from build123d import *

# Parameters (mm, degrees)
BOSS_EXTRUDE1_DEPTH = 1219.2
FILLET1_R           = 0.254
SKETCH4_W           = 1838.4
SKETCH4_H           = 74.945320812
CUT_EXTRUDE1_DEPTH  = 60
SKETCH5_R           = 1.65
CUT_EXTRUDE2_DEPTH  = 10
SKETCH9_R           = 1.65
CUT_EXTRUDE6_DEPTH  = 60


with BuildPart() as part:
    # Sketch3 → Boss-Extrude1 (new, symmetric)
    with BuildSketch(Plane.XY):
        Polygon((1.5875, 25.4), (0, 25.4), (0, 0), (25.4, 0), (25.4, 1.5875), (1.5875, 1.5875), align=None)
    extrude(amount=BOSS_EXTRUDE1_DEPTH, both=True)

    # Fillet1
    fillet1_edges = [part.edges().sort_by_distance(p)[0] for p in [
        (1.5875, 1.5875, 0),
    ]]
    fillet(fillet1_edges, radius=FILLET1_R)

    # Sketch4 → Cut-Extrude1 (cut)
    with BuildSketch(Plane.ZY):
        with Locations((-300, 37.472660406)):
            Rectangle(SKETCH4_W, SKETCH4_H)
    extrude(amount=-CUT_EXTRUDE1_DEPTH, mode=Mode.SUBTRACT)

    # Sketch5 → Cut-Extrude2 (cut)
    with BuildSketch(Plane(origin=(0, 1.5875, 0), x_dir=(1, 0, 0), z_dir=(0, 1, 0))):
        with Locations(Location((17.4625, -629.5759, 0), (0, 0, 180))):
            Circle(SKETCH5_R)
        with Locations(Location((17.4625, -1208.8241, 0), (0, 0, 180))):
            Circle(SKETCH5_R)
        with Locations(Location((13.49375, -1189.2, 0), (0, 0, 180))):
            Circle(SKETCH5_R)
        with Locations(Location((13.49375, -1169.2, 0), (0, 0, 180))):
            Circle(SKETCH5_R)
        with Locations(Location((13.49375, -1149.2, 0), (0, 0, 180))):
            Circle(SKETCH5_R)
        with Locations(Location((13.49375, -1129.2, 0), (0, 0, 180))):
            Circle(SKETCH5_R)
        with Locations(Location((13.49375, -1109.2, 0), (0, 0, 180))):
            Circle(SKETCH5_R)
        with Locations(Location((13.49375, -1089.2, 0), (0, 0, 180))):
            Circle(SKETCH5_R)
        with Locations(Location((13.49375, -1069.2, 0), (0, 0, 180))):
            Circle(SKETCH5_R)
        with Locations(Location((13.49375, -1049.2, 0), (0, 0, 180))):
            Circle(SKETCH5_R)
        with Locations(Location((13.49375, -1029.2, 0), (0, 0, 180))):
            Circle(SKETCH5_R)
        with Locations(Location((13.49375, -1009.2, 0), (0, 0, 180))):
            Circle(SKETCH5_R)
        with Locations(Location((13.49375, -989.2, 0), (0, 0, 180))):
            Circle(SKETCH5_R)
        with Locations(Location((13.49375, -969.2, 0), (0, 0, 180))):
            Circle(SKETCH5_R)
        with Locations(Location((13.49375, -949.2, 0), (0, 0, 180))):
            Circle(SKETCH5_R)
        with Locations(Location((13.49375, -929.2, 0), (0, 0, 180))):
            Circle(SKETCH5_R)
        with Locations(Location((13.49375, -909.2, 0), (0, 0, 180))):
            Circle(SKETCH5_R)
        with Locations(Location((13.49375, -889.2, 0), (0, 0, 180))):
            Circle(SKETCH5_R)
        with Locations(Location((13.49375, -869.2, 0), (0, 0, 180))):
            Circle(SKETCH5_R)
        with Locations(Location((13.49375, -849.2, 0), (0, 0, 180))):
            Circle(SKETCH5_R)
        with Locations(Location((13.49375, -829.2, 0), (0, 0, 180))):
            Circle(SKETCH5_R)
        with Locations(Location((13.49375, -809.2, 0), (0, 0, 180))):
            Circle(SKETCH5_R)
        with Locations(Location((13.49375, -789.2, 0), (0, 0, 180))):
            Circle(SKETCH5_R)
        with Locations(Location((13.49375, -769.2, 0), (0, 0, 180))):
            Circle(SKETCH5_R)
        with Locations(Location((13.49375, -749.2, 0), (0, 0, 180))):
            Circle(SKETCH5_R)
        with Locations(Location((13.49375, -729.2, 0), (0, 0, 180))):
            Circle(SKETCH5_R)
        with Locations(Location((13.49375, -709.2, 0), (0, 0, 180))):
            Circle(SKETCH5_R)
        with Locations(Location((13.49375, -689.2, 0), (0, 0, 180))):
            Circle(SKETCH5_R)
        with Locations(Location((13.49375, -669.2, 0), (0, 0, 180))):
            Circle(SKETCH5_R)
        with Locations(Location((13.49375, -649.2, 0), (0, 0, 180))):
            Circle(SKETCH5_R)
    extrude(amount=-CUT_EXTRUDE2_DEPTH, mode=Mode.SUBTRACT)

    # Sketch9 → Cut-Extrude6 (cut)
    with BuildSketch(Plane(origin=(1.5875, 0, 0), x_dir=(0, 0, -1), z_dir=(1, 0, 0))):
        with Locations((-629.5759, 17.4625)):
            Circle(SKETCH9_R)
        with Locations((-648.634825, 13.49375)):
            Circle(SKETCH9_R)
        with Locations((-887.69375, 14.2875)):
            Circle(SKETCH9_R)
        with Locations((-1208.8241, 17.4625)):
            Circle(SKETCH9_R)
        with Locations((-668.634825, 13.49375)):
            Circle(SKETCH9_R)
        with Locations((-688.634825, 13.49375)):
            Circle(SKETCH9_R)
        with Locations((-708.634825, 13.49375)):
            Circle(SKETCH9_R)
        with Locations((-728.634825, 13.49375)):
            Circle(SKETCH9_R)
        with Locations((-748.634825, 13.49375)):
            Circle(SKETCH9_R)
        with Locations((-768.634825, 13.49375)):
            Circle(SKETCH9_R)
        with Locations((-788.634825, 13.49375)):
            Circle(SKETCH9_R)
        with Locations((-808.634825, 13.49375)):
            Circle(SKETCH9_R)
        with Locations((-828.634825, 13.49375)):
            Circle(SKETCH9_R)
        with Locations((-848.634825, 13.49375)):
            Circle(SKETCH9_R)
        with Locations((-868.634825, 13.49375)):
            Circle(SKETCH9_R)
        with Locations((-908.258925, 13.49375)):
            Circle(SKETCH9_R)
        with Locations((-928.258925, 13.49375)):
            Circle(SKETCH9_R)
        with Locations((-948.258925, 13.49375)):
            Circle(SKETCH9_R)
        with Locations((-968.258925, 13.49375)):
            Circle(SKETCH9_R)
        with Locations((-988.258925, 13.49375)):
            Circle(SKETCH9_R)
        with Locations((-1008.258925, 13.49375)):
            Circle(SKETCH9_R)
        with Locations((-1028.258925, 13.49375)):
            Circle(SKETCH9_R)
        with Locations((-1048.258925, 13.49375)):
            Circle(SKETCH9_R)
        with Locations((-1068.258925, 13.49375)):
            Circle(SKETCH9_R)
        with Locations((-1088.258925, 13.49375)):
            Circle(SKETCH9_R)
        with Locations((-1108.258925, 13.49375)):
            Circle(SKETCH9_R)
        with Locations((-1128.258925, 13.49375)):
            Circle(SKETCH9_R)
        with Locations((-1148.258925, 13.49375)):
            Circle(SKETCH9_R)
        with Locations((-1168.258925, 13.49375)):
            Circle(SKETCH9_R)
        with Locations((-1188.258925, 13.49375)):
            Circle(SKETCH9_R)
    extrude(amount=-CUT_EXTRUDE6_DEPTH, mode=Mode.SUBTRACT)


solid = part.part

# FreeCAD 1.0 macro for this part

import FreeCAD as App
import Part
import Sketcher
from FreeCAD import Vector
Q = App.Units.Quantity


def edges_at(feature, points):
    """Names of the edges that pass closest to the given points."""
    edges = feature.Shape.Edges
    near = lambda p: min(range(len(edges)), key=lambda i: edges[i].distToShape(Part.Vertex(*p))[0])
    return sorted({f"Edge{near(p) + 1}" for p in points})


def add_polygon(sketch, points):
    """Adds a closed chain of lines whose ends are joined by coincident constraints."""
    first, n = sketch.GeometryCount, len(points)
    for a, b in zip(points, points[1:] + points[:1]):
        sketch.addGeometry(Part.LineSegment(App.Vector(*a, 0), App.Vector(*b, 0)), False)
    for i in range(n):
        sketch.addConstraint(Sketcher.Constraint("Coincident", first + i, 2, first + (i + 1) % n, 1))

doc = App.newDocument("Part")
params = doc.addObject("Spreadsheet::Sheet", "Params")
for row, (alias, value) in enumerate([
    ("sketch1_width", "1 in"),
    ("sketch1_width2", "0.0625 in"),
    ("pad1_length", "96 in"),
    ("fillet_radius", "0.01 in"),
    ("pocket1_length", "60 mm"),
    ("pocket2_length", "10 mm"),
    ("pocket3_length", "60 mm"),
], start=1):
    params.set(f"A{row}", alias)
    params.set(f"B{row}", "=" + value)
    params.setAlias(f"B{row}", alias)

body = doc.addObject("PartDesign::Body", "Body")

# Sketch on XY plane
sketch1 = doc.addObject("Sketcher::SketchObject", "Sketch")
body.addObject(sketch1)
sketch1.AttachmentSupport = (doc.XY_Plane, [""])
sketch1.MapMode = "FlatFace"
add_polygon(sketch1, [(1.6, 25.4), (0, 25.4), (0, 0), (25.4, 0), (25.4, 1.6), (1.6, 1.6)])  # lines 0-5
sketch1.addConstraint(Sketcher.Constraint("Horizontal", 0))
sketch1.addConstraint(Sketcher.Constraint("Vertical", 1))
sketch1.addConstraint(Sketcher.Constraint("Horizontal", 2))
sketch1.addConstraint(Sketcher.Constraint("Vertical", 3))
sketch1.addConstraint(Sketcher.Constraint("Horizontal", 4))
sketch1.addConstraint(Sketcher.Constraint("Vertical", 5))
sketch1.addConstraint(Sketcher.Constraint("Coincident", 1, 2, -1, 1))
sketch1.addConstraint(Sketcher.Constraint("Equal", 2, 1))
sketch1.addConstraint(Sketcher.Constraint("Equal", 0, 3))
sketch1.addConstraint(Sketcher.Constraint("DistanceX", 2, 1, 2, 2, Q("1 in")))
sketch1.addConstraint(Sketcher.Constraint("DistanceX", 0, 2, 0, 1, Q("0.0625 in")))
sketch1.setExpression("Constraints[15]", "Params.sketch1_width")
sketch1.setExpression("Constraints[16]", "Params.sketch1_width2")
pad1 = doc.addObject("PartDesign::Pad", "Pad")
body.addObject(pad1)
pad1.Profile = sketch1
pad1.setExpression("Length", "Params.pad1_length")
pad1.Midplane = True
doc.recompute()

fillet = doc.addObject("PartDesign::Fillet", "Fillet")
body.addObject(fillet)
fillet.Base = (pad1, edges_at(pad1, [(1.587, 1.587, 0)]))
fillet.setExpression("Radius", "Params.fillet_radius")

# Sketch on YZ plane
sketch2 = doc.addObject("Sketcher::SketchObject", "Sketch001")
body.addObject(sketch2)
sketch2.AttachmentSupport = (doc.YZ_Plane, [""])
sketch2.MapMode = "FlatFace"
add_polygon(sketch2, [(75, -1219), (0, -1219), (0, 619), (75, 619)])  # lines 0-3
sketch2.addConstraint(Sketcher.Constraint("Horizontal", 0))
sketch2.addConstraint(Sketcher.Constraint("Vertical", 1))
sketch2.addConstraint(Sketcher.Constraint("Horizontal", 2))
sketch2.addConstraint(Sketcher.Constraint("Vertical", 3))
sketch2.addConstraint(Sketcher.Constraint("PointOnObject", 0, 2, -2))
sketch2.addConstraint(Sketcher.Constraint("DistanceY", 0, 2, -1, 1, Q("48 in")))
sketch2.addConstraint(Sketcher.Constraint("DistanceY", 1, 1, 1, 2, 1838.4))
sketch2.addConstraint(Sketcher.Constraint("DistanceX", 0, 2, 0, 1, 74.945321))
pocket1 = doc.addObject("PartDesign::Pocket", "Pocket")
body.addObject(pocket1)
pocket1.Profile = sketch2
pocket1.setExpression("Length", "Params.pocket1_length")
pocket1.Reversed = True

# Sketch on XZ plane
sketch3 = doc.addObject("Sketcher::SketchObject", "Sketch002")
body.addObject(sketch3)
sketch3.AttachmentSupport = (doc.XZ_Plane, [""])
sketch3.MapMode = "FlatFace"
sketch3.AttachmentOffset = App.Placement(Vector(0, 0, -0.0625 * 25.4), App.Rotation())
sketch3.addGeometry(Part.Circle(Vector(17.5, 629.6, 0), Vector(0, 0, 1), 1.6), False)
sketch3.addGeometry(Part.Circle(Vector(17.5, 1208.8, 0), Vector(0, 0, 1), 1.6), False)
sketch3.addGeometry(Part.Circle(Vector(13.5, 1189.2, 0), Vector(0, 0, 1), 1.6), False)
sketch3.addGeometry(Part.Circle(Vector(13.5, 1169.2, 0), Vector(0, 0, 1), 1.6), False)
sketch3.addGeometry(Part.Circle(Vector(13.5, 1149.2, 0), Vector(0, 0, 1), 1.6), False)
sketch3.addGeometry(Part.Circle(Vector(13.5, 1129.2, 0), Vector(0, 0, 1), 1.6), False)
sketch3.addGeometry(Part.Circle(Vector(13.5, 1109.2, 0), Vector(0, 0, 1), 1.6), False)
sketch3.addGeometry(Part.Circle(Vector(13.5, 1089.2, 0), Vector(0, 0, 1), 1.6), False)
sketch3.addGeometry(Part.Circle(Vector(13.5, 1069.2, 0), Vector(0, 0, 1), 1.6), False)
sketch3.addGeometry(Part.Circle(Vector(13.5, 1049.2, 0), Vector(0, 0, 1), 1.6), False)
sketch3.addGeometry(Part.Circle(Vector(13.5, 1029.2, 0), Vector(0, 0, 1), 1.6), False)
sketch3.addGeometry(Part.Circle(Vector(13.5, 1009.2, 0), Vector(0, 0, 1), 1.6), False)
sketch3.addGeometry(Part.Circle(Vector(13.5, 989.2, 0), Vector(0, 0, 1), 1.6), False)
sketch3.addGeometry(Part.Circle(Vector(13.5, 969.2, 0), Vector(0, 0, 1), 1.6), False)
sketch3.addGeometry(Part.Circle(Vector(13.5, 949.2, 0), Vector(0, 0, 1), 1.6), False)
sketch3.addGeometry(Part.Circle(Vector(13.5, 929.2, 0), Vector(0, 0, 1), 1.6), False)
sketch3.addGeometry(Part.Circle(Vector(13.5, 909.2, 0), Vector(0, 0, 1), 1.6), False)
sketch3.addGeometry(Part.Circle(Vector(13.5, 889.2, 0), Vector(0, 0, 1), 1.6), False)
sketch3.addGeometry(Part.Circle(Vector(13.5, 869.2, 0), Vector(0, 0, 1), 1.6), False)
sketch3.addGeometry(Part.Circle(Vector(13.5, 849.2, 0), Vector(0, 0, 1), 1.6), False)
sketch3.addGeometry(Part.Circle(Vector(13.5, 829.2, 0), Vector(0, 0, 1), 1.6), False)
sketch3.addGeometry(Part.Circle(Vector(13.5, 809.2, 0), Vector(0, 0, 1), 1.6), False)
sketch3.addGeometry(Part.Circle(Vector(13.5, 789.2, 0), Vector(0, 0, 1), 1.6), False)
sketch3.addGeometry(Part.Circle(Vector(13.5, 769.2, 0), Vector(0, 0, 1), 1.6), False)
sketch3.addGeometry(Part.Circle(Vector(13.5, 749.2, 0), Vector(0, 0, 1), 1.6), False)
sketch3.addGeometry(Part.Circle(Vector(13.5, 729.2, 0), Vector(0, 0, 1), 1.6), False)
sketch3.addGeometry(Part.Circle(Vector(13.5, 709.2, 0), Vector(0, 0, 1), 1.6), False)
sketch3.addGeometry(Part.Circle(Vector(13.5, 689.2, 0), Vector(0, 0, 1), 1.6), False)
sketch3.addGeometry(Part.Circle(Vector(13.5, 669.2, 0), Vector(0, 0, 1), 1.6), False)
sketch3.addGeometry(Part.Circle(Vector(13.5, 649.2, 0), Vector(0, 0, 1), 1.6), False)
sketch3.addConstraint(Sketcher.Constraint("Equal", 0, 1))
sketch3.addConstraint(Sketcher.Constraint("Equal", 1, 2))
sketch3.addConstraint(Sketcher.Constraint("Equal", 2, 3))
sketch3.addConstraint(Sketcher.Constraint("Equal", 3, 4))
sketch3.addConstraint(Sketcher.Constraint("Equal", 4, 5))
sketch3.addConstraint(Sketcher.Constraint("Equal", 5, 6))
sketch3.addConstraint(Sketcher.Constraint("Equal", 6, 7))
sketch3.addConstraint(Sketcher.Constraint("Equal", 7, 8))
sketch3.addConstraint(Sketcher.Constraint("Equal", 8, 9))
sketch3.addConstraint(Sketcher.Constraint("Equal", 9, 10))
sketch3.addConstraint(Sketcher.Constraint("Equal", 10, 11))
sketch3.addConstraint(Sketcher.Constraint("Equal", 11, 12))
sketch3.addConstraint(Sketcher.Constraint("Equal", 12, 13))
sketch3.addConstraint(Sketcher.Constraint("Equal", 13, 14))
sketch3.addConstraint(Sketcher.Constraint("Equal", 14, 15))
sketch3.addConstraint(Sketcher.Constraint("Equal", 15, 16))
sketch3.addConstraint(Sketcher.Constraint("Equal", 16, 17))
sketch3.addConstraint(Sketcher.Constraint("Equal", 17, 18))
sketch3.addConstraint(Sketcher.Constraint("Equal", 18, 19))
sketch3.addConstraint(Sketcher.Constraint("Equal", 19, 20))
sketch3.addConstraint(Sketcher.Constraint("Equal", 20, 21))
sketch3.addConstraint(Sketcher.Constraint("Equal", 21, 22))
sketch3.addConstraint(Sketcher.Constraint("Equal", 22, 23))
sketch3.addConstraint(Sketcher.Constraint("Equal", 23, 24))
sketch3.addConstraint(Sketcher.Constraint("Equal", 24, 25))
sketch3.addConstraint(Sketcher.Constraint("Equal", 25, 26))
sketch3.addConstraint(Sketcher.Constraint("Equal", 26, 27))
sketch3.addConstraint(Sketcher.Constraint("Equal", 27, 28))
sketch3.addConstraint(Sketcher.Constraint("Equal", 28, 29))
sketch3.addConstraint(Sketcher.Constraint("Vertical", 0, 3, 1, 3))
sketch3.addConstraint(Sketcher.Constraint("Vertical", 2, 3, 3, 3))
sketch3.addConstraint(Sketcher.Constraint("Vertical", 3, 3, 4, 3))
sketch3.addConstraint(Sketcher.Constraint("Vertical", 4, 3, 5, 3))
sketch3.addConstraint(Sketcher.Constraint("Vertical", 5, 3, 6, 3))
sketch3.addConstraint(Sketcher.Constraint("Vertical", 6, 3, 7, 3))
sketch3.addConstraint(Sketcher.Constraint("Vertical", 7, 3, 8, 3))
sketch3.addConstraint(Sketcher.Constraint("Vertical", 8, 3, 9, 3))
sketch3.addConstraint(Sketcher.Constraint("Vertical", 9, 3, 10, 3))
sketch3.addConstraint(Sketcher.Constraint("Vertical", 10, 3, 11, 3))
sketch3.addConstraint(Sketcher.Constraint("Vertical", 11, 3, 12, 3))
sketch3.addConstraint(Sketcher.Constraint("Vertical", 12, 3, 13, 3))
sketch3.addConstraint(Sketcher.Constraint("Vertical", 13, 3, 14, 3))
sketch3.addConstraint(Sketcher.Constraint("Vertical", 14, 3, 15, 3))
sketch3.addConstraint(Sketcher.Constraint("Vertical", 15, 3, 16, 3))
sketch3.addConstraint(Sketcher.Constraint("Vertical", 16, 3, 17, 3))
sketch3.addConstraint(Sketcher.Constraint("Vertical", 17, 3, 18, 3))
sketch3.addConstraint(Sketcher.Constraint("Vertical", 18, 3, 19, 3))
sketch3.addConstraint(Sketcher.Constraint("Vertical", 19, 3, 20, 3))
sketch3.addConstraint(Sketcher.Constraint("Vertical", 20, 3, 21, 3))
sketch3.addConstraint(Sketcher.Constraint("Vertical", 21, 3, 22, 3))
sketch3.addConstraint(Sketcher.Constraint("Vertical", 22, 3, 23, 3))
sketch3.addConstraint(Sketcher.Constraint("Vertical", 23, 3, 24, 3))
sketch3.addConstraint(Sketcher.Constraint("Vertical", 24, 3, 25, 3))
sketch3.addConstraint(Sketcher.Constraint("Vertical", 25, 3, 26, 3))
sketch3.addConstraint(Sketcher.Constraint("Vertical", 26, 3, 27, 3))
sketch3.addConstraint(Sketcher.Constraint("Vertical", 27, 3, 28, 3))
sketch3.addConstraint(Sketcher.Constraint("Vertical", 28, 3, 29, 3))
sketch3.addConstraint(Sketcher.Constraint("Diameter", 0, 3.3))
sketch3.addConstraint(Sketcher.Constraint("DistanceX", -1, 1, 0, 3, Q("0.6875 in")))
sketch3.addConstraint(Sketcher.Constraint("DistanceX", -1, 1, 2, 3, Q("0.53125 in")))
sketch3.addConstraint(Sketcher.Constraint("DistanceY", -1, 1, 1, 3, Q("47.5915 in")))
sketch3.addConstraint(Sketcher.Constraint("DistanceY", -1, 1, 0, 3, 629.5759))
sketch3.addConstraint(Sketcher.Constraint("DistanceY", -1, 1, 2, 3, 1189.2))
sketch3.addConstraint(Sketcher.Constraint("DistanceY", -1, 1, 3, 3, 1169.2))
sketch3.addConstraint(Sketcher.Constraint("DistanceY", -1, 1, 4, 3, 1149.2))
sketch3.addConstraint(Sketcher.Constraint("DistanceY", -1, 1, 5, 3, 1129.2))
sketch3.addConstraint(Sketcher.Constraint("DistanceY", -1, 1, 6, 3, 1109.2))
sketch3.addConstraint(Sketcher.Constraint("DistanceY", -1, 1, 7, 3, 1089.2))
sketch3.addConstraint(Sketcher.Constraint("DistanceY", -1, 1, 8, 3, 1069.2))
sketch3.addConstraint(Sketcher.Constraint("DistanceY", -1, 1, 9, 3, 1049.2))
sketch3.addConstraint(Sketcher.Constraint("DistanceY", -1, 1, 10, 3, 1029.2))
sketch3.addConstraint(Sketcher.Constraint("DistanceY", -1, 1, 11, 3, 1009.2))
sketch3.addConstraint(Sketcher.Constraint("DistanceY", -1, 1, 12, 3, 989.2))
sketch3.addConstraint(Sketcher.Constraint("DistanceY", -1, 1, 13, 3, 969.2))
sketch3.addConstraint(Sketcher.Constraint("DistanceY", -1, 1, 14, 3, 949.2))
sketch3.addConstraint(Sketcher.Constraint("DistanceY", -1, 1, 15, 3, 929.2))
sketch3.addConstraint(Sketcher.Constraint("DistanceY", -1, 1, 16, 3, 909.2))
sketch3.addConstraint(Sketcher.Constraint("DistanceY", -1, 1, 17, 3, 889.2))
sketch3.addConstraint(Sketcher.Constraint("DistanceY", -1, 1, 18, 3, 869.2))
sketch3.addConstraint(Sketcher.Constraint("DistanceY", -1, 1, 19, 3, 849.2))
sketch3.addConstraint(Sketcher.Constraint("DistanceY", -1, 1, 20, 3, 829.2))
sketch3.addConstraint(Sketcher.Constraint("DistanceY", -1, 1, 21, 3, 809.2))
sketch3.addConstraint(Sketcher.Constraint("DistanceY", -1, 1, 22, 3, 789.2))
sketch3.addConstraint(Sketcher.Constraint("DistanceY", -1, 1, 23, 3, 769.2))
sketch3.addConstraint(Sketcher.Constraint("DistanceY", -1, 1, 24, 3, 749.2))
sketch3.addConstraint(Sketcher.Constraint("DistanceY", -1, 1, 25, 3, 729.2))
sketch3.addConstraint(Sketcher.Constraint("DistanceY", -1, 1, 26, 3, 709.2))
sketch3.addConstraint(Sketcher.Constraint("DistanceY", -1, 1, 27, 3, 689.2))
sketch3.addConstraint(Sketcher.Constraint("DistanceY", -1, 1, 28, 3, 669.2))
sketch3.addConstraint(Sketcher.Constraint("DistanceY", -1, 1, 29, 3, 649.2))
pocket2 = doc.addObject("PartDesign::Pocket", "Pocket001")
body.addObject(pocket2)
pocket2.Profile = sketch3
pocket2.setExpression("Length", "Params.pocket2_length")
pocket2.Reversed = True

# Sketch on YZ plane
sketch4 = doc.addObject("Sketcher::SketchObject", "Sketch003")
body.addObject(sketch4)
sketch4.AttachmentSupport = (doc.YZ_Plane, [""])
sketch4.MapMode = "FlatFace"
sketch4.AttachmentOffset = App.Placement(Vector(0, 0, 0.0625 * 25.4), App.Rotation())
sketch4.addGeometry(Part.Circle(Vector(17.5, 629.6, 0), Vector(0, 0, 1), 1.6), False)
sketch4.addGeometry(Part.Circle(Vector(13.5, 648.6, 0), Vector(0, 0, 1), 1.6), False)
sketch4.addGeometry(Part.Circle(Vector(14.3, 887.7, 0), Vector(0, 0, 1), 1.6), False)
sketch4.addGeometry(Part.Circle(Vector(17.5, 1208.8, 0), Vector(0, 0, 1), 1.6), False)
sketch4.addGeometry(Part.Circle(Vector(13.5, 668.6, 0), Vector(0, 0, 1), 1.6), False)
sketch4.addGeometry(Part.Circle(Vector(13.5, 688.6, 0), Vector(0, 0, 1), 1.6), False)
sketch4.addGeometry(Part.Circle(Vector(13.5, 708.6, 0), Vector(0, 0, 1), 1.6), False)
sketch4.addGeometry(Part.Circle(Vector(13.5, 728.6, 0), Vector(0, 0, 1), 1.6), False)
sketch4.addGeometry(Part.Circle(Vector(13.5, 748.6, 0), Vector(0, 0, 1), 1.6), False)
sketch4.addGeometry(Part.Circle(Vector(13.5, 768.6, 0), Vector(0, 0, 1), 1.6), False)
sketch4.addGeometry(Part.Circle(Vector(13.5, 788.6, 0), Vector(0, 0, 1), 1.6), False)
sketch4.addGeometry(Part.Circle(Vector(13.5, 808.6, 0), Vector(0, 0, 1), 1.6), False)
sketch4.addGeometry(Part.Circle(Vector(13.5, 828.6, 0), Vector(0, 0, 1), 1.6), False)
sketch4.addGeometry(Part.Circle(Vector(13.5, 848.6, 0), Vector(0, 0, 1), 1.6), False)
sketch4.addGeometry(Part.Circle(Vector(13.5, 868.6, 0), Vector(0, 0, 1), 1.6), False)
sketch4.addGeometry(Part.Circle(Vector(13.5, 908.3, 0), Vector(0, 0, 1), 1.6), False)
sketch4.addGeometry(Part.Circle(Vector(13.5, 928.3, 0), Vector(0, 0, 1), 1.6), False)
sketch4.addGeometry(Part.Circle(Vector(13.5, 948.3, 0), Vector(0, 0, 1), 1.6), False)
sketch4.addGeometry(Part.Circle(Vector(13.5, 968.3, 0), Vector(0, 0, 1), 1.6), False)
sketch4.addGeometry(Part.Circle(Vector(13.5, 988.3, 0), Vector(0, 0, 1), 1.6), False)
sketch4.addGeometry(Part.Circle(Vector(13.5, 1008.3, 0), Vector(0, 0, 1), 1.6), False)
sketch4.addGeometry(Part.Circle(Vector(13.5, 1028.3, 0), Vector(0, 0, 1), 1.6), False)
sketch4.addGeometry(Part.Circle(Vector(13.5, 1048.3, 0), Vector(0, 0, 1), 1.6), False)
sketch4.addGeometry(Part.Circle(Vector(13.5, 1068.3, 0), Vector(0, 0, 1), 1.6), False)
sketch4.addGeometry(Part.Circle(Vector(13.5, 1088.3, 0), Vector(0, 0, 1), 1.6), False)
sketch4.addGeometry(Part.Circle(Vector(13.5, 1108.3, 0), Vector(0, 0, 1), 1.6), False)
sketch4.addGeometry(Part.Circle(Vector(13.5, 1128.3, 0), Vector(0, 0, 1), 1.6), False)
sketch4.addGeometry(Part.Circle(Vector(13.5, 1148.3, 0), Vector(0, 0, 1), 1.6), False)
sketch4.addGeometry(Part.Circle(Vector(13.5, 1168.3, 0), Vector(0, 0, 1), 1.6), False)
sketch4.addGeometry(Part.Circle(Vector(13.5, 1188.3, 0), Vector(0, 0, 1), 1.6), False)
sketch4.addConstraint(Sketcher.Constraint("Equal", 0, 1))
sketch4.addConstraint(Sketcher.Constraint("Equal", 1, 2))
sketch4.addConstraint(Sketcher.Constraint("Equal", 2, 3))
sketch4.addConstraint(Sketcher.Constraint("Equal", 3, 4))
sketch4.addConstraint(Sketcher.Constraint("Equal", 4, 5))
sketch4.addConstraint(Sketcher.Constraint("Equal", 5, 6))
sketch4.addConstraint(Sketcher.Constraint("Equal", 6, 7))
sketch4.addConstraint(Sketcher.Constraint("Equal", 7, 8))
sketch4.addConstraint(Sketcher.Constraint("Equal", 8, 9))
sketch4.addConstraint(Sketcher.Constraint("Equal", 9, 10))
sketch4.addConstraint(Sketcher.Constraint("Equal", 10, 11))
sketch4.addConstraint(Sketcher.Constraint("Equal", 11, 12))
sketch4.addConstraint(Sketcher.Constraint("Equal", 12, 13))
sketch4.addConstraint(Sketcher.Constraint("Equal", 13, 14))
sketch4.addConstraint(Sketcher.Constraint("Equal", 14, 15))
sketch4.addConstraint(Sketcher.Constraint("Equal", 15, 16))
sketch4.addConstraint(Sketcher.Constraint("Equal", 16, 17))
sketch4.addConstraint(Sketcher.Constraint("Equal", 17, 18))
sketch4.addConstraint(Sketcher.Constraint("Equal", 18, 19))
sketch4.addConstraint(Sketcher.Constraint("Equal", 19, 20))
sketch4.addConstraint(Sketcher.Constraint("Equal", 20, 21))
sketch4.addConstraint(Sketcher.Constraint("Equal", 21, 22))
sketch4.addConstraint(Sketcher.Constraint("Equal", 22, 23))
sketch4.addConstraint(Sketcher.Constraint("Equal", 23, 24))
sketch4.addConstraint(Sketcher.Constraint("Equal", 24, 25))
sketch4.addConstraint(Sketcher.Constraint("Equal", 25, 26))
sketch4.addConstraint(Sketcher.Constraint("Equal", 26, 27))
sketch4.addConstraint(Sketcher.Constraint("Equal", 27, 28))
sketch4.addConstraint(Sketcher.Constraint("Equal", 28, 29))
sketch4.addConstraint(Sketcher.Constraint("Vertical", 0, 3, 3, 3))
sketch4.addConstraint(Sketcher.Constraint("Vertical", 1, 3, 4, 3))
sketch4.addConstraint(Sketcher.Constraint("Vertical", 4, 3, 5, 3))
sketch4.addConstraint(Sketcher.Constraint("Vertical", 5, 3, 6, 3))
sketch4.addConstraint(Sketcher.Constraint("Vertical", 6, 3, 7, 3))
sketch4.addConstraint(Sketcher.Constraint("Vertical", 7, 3, 8, 3))
sketch4.addConstraint(Sketcher.Constraint("Vertical", 8, 3, 9, 3))
sketch4.addConstraint(Sketcher.Constraint("Vertical", 9, 3, 10, 3))
sketch4.addConstraint(Sketcher.Constraint("Vertical", 10, 3, 11, 3))
sketch4.addConstraint(Sketcher.Constraint("Vertical", 11, 3, 12, 3))
sketch4.addConstraint(Sketcher.Constraint("Vertical", 12, 3, 13, 3))
sketch4.addConstraint(Sketcher.Constraint("Vertical", 13, 3, 14, 3))
sketch4.addConstraint(Sketcher.Constraint("Vertical", 14, 3, 15, 3))
sketch4.addConstraint(Sketcher.Constraint("Vertical", 15, 3, 16, 3))
sketch4.addConstraint(Sketcher.Constraint("Vertical", 16, 3, 17, 3))
sketch4.addConstraint(Sketcher.Constraint("Vertical", 17, 3, 18, 3))
sketch4.addConstraint(Sketcher.Constraint("Vertical", 18, 3, 19, 3))
sketch4.addConstraint(Sketcher.Constraint("Vertical", 19, 3, 20, 3))
sketch4.addConstraint(Sketcher.Constraint("Vertical", 20, 3, 21, 3))
sketch4.addConstraint(Sketcher.Constraint("Vertical", 21, 3, 22, 3))
sketch4.addConstraint(Sketcher.Constraint("Vertical", 22, 3, 23, 3))
sketch4.addConstraint(Sketcher.Constraint("Vertical", 23, 3, 24, 3))
sketch4.addConstraint(Sketcher.Constraint("Vertical", 24, 3, 25, 3))
sketch4.addConstraint(Sketcher.Constraint("Vertical", 25, 3, 26, 3))
sketch4.addConstraint(Sketcher.Constraint("Vertical", 26, 3, 27, 3))
sketch4.addConstraint(Sketcher.Constraint("Vertical", 27, 3, 28, 3))
sketch4.addConstraint(Sketcher.Constraint("Vertical", 28, 3, 29, 3))
sketch4.addConstraint(Sketcher.Constraint("Diameter", 0, 3.3))
sketch4.addConstraint(Sketcher.Constraint("DistanceX", -1, 1, 0, 3, Q("0.6875 in")))
sketch4.addConstraint(Sketcher.Constraint("DistanceX", -1, 1, 1, 3, Q("0.53125 in")))
sketch4.addConstraint(Sketcher.Constraint("DistanceX", -1, 1, 2, 3, Q("0.5625 in")))
sketch4.addConstraint(Sketcher.Constraint("DistanceY", -1, 1, 3, 3, Q("47.5915 in")))
sketch4.addConstraint(Sketcher.Constraint("DistanceY", -1, 1, 0, 3, 629.5759))
sketch4.addConstraint(Sketcher.Constraint("DistanceY", 1, 3, 4, 3, 20.0))
sketch4.addConstraint(Sketcher.Constraint("DistanceY", 4, 3, 5, 3, 20.0))
sketch4.addConstraint(Sketcher.Constraint("DistanceY", 5, 3, 6, 3, 20.0))
sketch4.addConstraint(Sketcher.Constraint("DistanceY", 6, 3, 7, 3, 20.0))
sketch4.addConstraint(Sketcher.Constraint("DistanceY", 7, 3, 8, 3, 20.0))
sketch4.addConstraint(Sketcher.Constraint("DistanceY", 8, 3, 9, 3, 20.0))
sketch4.addConstraint(Sketcher.Constraint("DistanceY", 9, 3, 10, 3, 20.0))
sketch4.addConstraint(Sketcher.Constraint("DistanceY", 10, 3, 11, 3, 20.0))
sketch4.addConstraint(Sketcher.Constraint("DistanceY", 11, 3, 12, 3, 20.0))
sketch4.addConstraint(Sketcher.Constraint("DistanceY", 12, 3, 13, 3, 20.0))
sketch4.addConstraint(Sketcher.Constraint("DistanceY", 13, 3, 14, 3, 20.0))
sketch4.addConstraint(Sketcher.Constraint("DistanceY", 14, 3, 15, 3, 39.6241))
sketch4.addConstraint(Sketcher.Constraint("DistanceY", 15, 3, 16, 3, 20.0))
sketch4.addConstraint(Sketcher.Constraint("DistanceY", 16, 3, 17, 3, 20.0))
sketch4.addConstraint(Sketcher.Constraint("DistanceY", 17, 3, 18, 3, 20.0))
sketch4.addConstraint(Sketcher.Constraint("DistanceY", 18, 3, 19, 3, 20.0))
sketch4.addConstraint(Sketcher.Constraint("DistanceY", 19, 3, 20, 3, 20.0))
sketch4.addConstraint(Sketcher.Constraint("DistanceY", 20, 3, 21, 3, 20.0))
sketch4.addConstraint(Sketcher.Constraint("DistanceY", 21, 3, 22, 3, 20.0))
sketch4.addConstraint(Sketcher.Constraint("DistanceY", 22, 3, 23, 3, 20.0))
sketch4.addConstraint(Sketcher.Constraint("DistanceY", 23, 3, 24, 3, 20.0))
sketch4.addConstraint(Sketcher.Constraint("DistanceY", 24, 3, 25, 3, 20.0))
sketch4.addConstraint(Sketcher.Constraint("DistanceY", 25, 3, 26, 3, 20.0))
sketch4.addConstraint(Sketcher.Constraint("DistanceY", 26, 3, 27, 3, 20.0))
sketch4.addConstraint(Sketcher.Constraint("DistanceY", 27, 3, 28, 3, 20.0))
sketch4.addConstraint(Sketcher.Constraint("DistanceY", 28, 3, 29, 3, 20.0))
sketch4.addConstraint(Sketcher.Constraint("DistanceY", -1, 1, 2, 3, 887.69375))
sketch4.addConstraint(Sketcher.Constraint("DistanceY", -1, 1, 1, 3, 648.634825))
pocket3 = doc.addObject("PartDesign::Pocket", "Pocket002")
body.addObject(pocket3)
pocket3.Profile = sketch4
pocket3.setExpression("Length", "Params.pocket3_length")

doc.recompute()
